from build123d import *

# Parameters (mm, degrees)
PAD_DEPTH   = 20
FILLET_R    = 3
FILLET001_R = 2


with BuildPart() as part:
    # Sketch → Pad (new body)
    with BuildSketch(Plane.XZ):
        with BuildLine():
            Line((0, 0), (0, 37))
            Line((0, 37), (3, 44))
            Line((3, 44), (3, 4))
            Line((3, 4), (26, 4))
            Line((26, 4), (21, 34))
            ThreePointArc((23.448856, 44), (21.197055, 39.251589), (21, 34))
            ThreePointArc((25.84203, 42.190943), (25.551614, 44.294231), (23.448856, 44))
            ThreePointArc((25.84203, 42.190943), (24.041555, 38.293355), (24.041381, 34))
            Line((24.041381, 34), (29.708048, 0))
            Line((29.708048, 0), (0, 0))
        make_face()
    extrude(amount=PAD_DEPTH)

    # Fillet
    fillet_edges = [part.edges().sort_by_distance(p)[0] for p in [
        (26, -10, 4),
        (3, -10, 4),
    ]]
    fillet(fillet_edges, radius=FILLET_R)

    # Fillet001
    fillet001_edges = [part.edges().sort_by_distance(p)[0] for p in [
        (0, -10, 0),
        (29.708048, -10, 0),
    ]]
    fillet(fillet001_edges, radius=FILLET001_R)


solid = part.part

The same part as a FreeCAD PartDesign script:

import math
import FreeCAD as App
import Part
import Sketcher

V = App.Vector
Q = App.Units.Quantity


def edges_at(feature, points):
    """Names of the edges that pass closest to the given points."""
    edges = feature.Shape.Edges
    near = lambda p: min(range(len(edges)), key=lambda i: edges[i].distToShape(Part.Vertex(*p))[0])
    return sorted({f"Edge{near(p) + 1}" for p in points})

doc = App.newDocument("Part")
body = doc.addObject("PartDesign::Body", "Body")

sketch1 = body.newObject("Sketcher::SketchObject", "Sketch")
sketch1.AttachmentSupport = (doc.getObject("XZ_Plane"), [""])
sketch1.MapMode = "FlatFace"
sketch1.addGeometry([
    Part.LineSegment(V(0, 37, 0), V(0, 0, 0)),
    Part.LineSegment(V(0, 0, 0), V(29.708048, 0, 0)),
    Part.LineSegment(V(29.708048, 0, 0), V(24.041381, 34, 0)),
    Part.ArcOfCircle(Part.Circle(V(33.808343, 36.146282, 0), V(0, 0, 1), 10.000004), math.radians(142.809583), math.radians(192.393709)),
    Part.ArcOfCircle(Part.Circle(V(24.647084, 43.097642, 0), V(0, 0, 1), 1.5), math.radians(-37.190436), math.radians(143.017437)),
    Part.ArcOfCircle(Part.Circle(V(33.877695, 36.146283, 0), V(0, 0, 1), 13.055327), math.radians(143.017443), math.radians(189.462323)),
    Part.LineSegment(V(21, 34, 0), V(26, 4, 0)),
    Part.LineSegment(V(26, 4, 0), V(3, 4, 0)),
    Part.LineSegment(V(3, 4, 0), V(3, 44, 0)),
    Part.LineSegment(V(3, 44, 0), V(0, 37, 0)),
], False)
sketch1.addConstraint([
    Sketcher.Constraint("Coincident", 0, 2, 1, 1),
    Sketcher.Constraint("Coincident", 1, 2, 2, 1),
    Sketcher.Constraint("Coincident", 2, 2, 3, 2),
    Sketcher.Constraint("Tangent", 3, 1, 4, 1),
    Sketcher.Constraint("Tangent", 4, 2, 5, 1),
    Sketcher.Constraint("Tangent", 5, 2, 6, 1),
    Sketcher.Constraint("Coincident", 6, 2, 7, 1),
    Sketcher.Constraint("Coincident", 7, 2, 8, 1),
    Sketcher.Constraint("Coincident", 8, 2, 9, 1),
    Sketcher.Constraint("Coincident", 9, 2, 0, 1),
    Sketcher.Constraint("Vertical", 0),
    Sketcher.Constraint("Horizontal", 1),
    Sketcher.Constraint("Horizontal", 7),
    Sketcher.Constraint("Vertical", 8),
    Sketcher.Constraint("Coincident", 0, 2, -1, 1),
    Sketcher.Constraint("Parallel", 2, 6),
    Sketcher.Constraint("Horizontal", 3, 3, 5, 3),
    Sketcher.Constraint("Horizontal", 2, 2, 5, 2),
    Sketcher.Constraint("Horizontal", 4, 2, 8, 2),
    Sketcher.Constraint("Radius", 4, Q("1.5 mm")),
    Sketcher.Constraint("DistanceX", 7, 2, 7, 1, Q("23 mm")),
    Sketcher.Constraint("DistanceY", 0, 2, 0, 1, Q("37 mm")),
    Sketcher.Constraint("DistanceY", 8, 1, 8, 2, Q("40 mm")),
    Sketcher.Constraint("DistanceY", -1, 1, 2, 2, Q("34 mm")),
    Sketcher.Constraint("DistanceY", -1, 1, 4, 2, Q("44 mm")),
    Sketcher.Constraint("DistanceX", -1, 1, 5, 2, Q("21 mm")),
    Sketcher.Constraint("DistanceX", -1, 1, 6, 2, Q("26 mm")),
    Sketcher.Constraint("Radius", 3, Q("10.000004 mm")),
    Sketcher.Constraint("Radius", 5, Q("13.055327 mm")),
])
pad1 = body.newObject("PartDesign::Pad", "Pad")
pad1.Profile = sketch1
pad1.Length = 20
doc.recompute()

fillet = body.newObject("PartDesign::Fillet", "Fillet")
fillet.Base = (pad1, edges_at(pad1, [(26, -10, 4), (3, -10, 4)]))
fillet.Radius = 3
doc.recompute()

fillet2 = body.newObject("PartDesign::Fillet", "Fillet001")
fillet2.Base = (fillet, edges_at(fillet, [(0, -10, 0), (29.708, -10, 0)]))
fillet2.Radius = 2

doc.recompute()
